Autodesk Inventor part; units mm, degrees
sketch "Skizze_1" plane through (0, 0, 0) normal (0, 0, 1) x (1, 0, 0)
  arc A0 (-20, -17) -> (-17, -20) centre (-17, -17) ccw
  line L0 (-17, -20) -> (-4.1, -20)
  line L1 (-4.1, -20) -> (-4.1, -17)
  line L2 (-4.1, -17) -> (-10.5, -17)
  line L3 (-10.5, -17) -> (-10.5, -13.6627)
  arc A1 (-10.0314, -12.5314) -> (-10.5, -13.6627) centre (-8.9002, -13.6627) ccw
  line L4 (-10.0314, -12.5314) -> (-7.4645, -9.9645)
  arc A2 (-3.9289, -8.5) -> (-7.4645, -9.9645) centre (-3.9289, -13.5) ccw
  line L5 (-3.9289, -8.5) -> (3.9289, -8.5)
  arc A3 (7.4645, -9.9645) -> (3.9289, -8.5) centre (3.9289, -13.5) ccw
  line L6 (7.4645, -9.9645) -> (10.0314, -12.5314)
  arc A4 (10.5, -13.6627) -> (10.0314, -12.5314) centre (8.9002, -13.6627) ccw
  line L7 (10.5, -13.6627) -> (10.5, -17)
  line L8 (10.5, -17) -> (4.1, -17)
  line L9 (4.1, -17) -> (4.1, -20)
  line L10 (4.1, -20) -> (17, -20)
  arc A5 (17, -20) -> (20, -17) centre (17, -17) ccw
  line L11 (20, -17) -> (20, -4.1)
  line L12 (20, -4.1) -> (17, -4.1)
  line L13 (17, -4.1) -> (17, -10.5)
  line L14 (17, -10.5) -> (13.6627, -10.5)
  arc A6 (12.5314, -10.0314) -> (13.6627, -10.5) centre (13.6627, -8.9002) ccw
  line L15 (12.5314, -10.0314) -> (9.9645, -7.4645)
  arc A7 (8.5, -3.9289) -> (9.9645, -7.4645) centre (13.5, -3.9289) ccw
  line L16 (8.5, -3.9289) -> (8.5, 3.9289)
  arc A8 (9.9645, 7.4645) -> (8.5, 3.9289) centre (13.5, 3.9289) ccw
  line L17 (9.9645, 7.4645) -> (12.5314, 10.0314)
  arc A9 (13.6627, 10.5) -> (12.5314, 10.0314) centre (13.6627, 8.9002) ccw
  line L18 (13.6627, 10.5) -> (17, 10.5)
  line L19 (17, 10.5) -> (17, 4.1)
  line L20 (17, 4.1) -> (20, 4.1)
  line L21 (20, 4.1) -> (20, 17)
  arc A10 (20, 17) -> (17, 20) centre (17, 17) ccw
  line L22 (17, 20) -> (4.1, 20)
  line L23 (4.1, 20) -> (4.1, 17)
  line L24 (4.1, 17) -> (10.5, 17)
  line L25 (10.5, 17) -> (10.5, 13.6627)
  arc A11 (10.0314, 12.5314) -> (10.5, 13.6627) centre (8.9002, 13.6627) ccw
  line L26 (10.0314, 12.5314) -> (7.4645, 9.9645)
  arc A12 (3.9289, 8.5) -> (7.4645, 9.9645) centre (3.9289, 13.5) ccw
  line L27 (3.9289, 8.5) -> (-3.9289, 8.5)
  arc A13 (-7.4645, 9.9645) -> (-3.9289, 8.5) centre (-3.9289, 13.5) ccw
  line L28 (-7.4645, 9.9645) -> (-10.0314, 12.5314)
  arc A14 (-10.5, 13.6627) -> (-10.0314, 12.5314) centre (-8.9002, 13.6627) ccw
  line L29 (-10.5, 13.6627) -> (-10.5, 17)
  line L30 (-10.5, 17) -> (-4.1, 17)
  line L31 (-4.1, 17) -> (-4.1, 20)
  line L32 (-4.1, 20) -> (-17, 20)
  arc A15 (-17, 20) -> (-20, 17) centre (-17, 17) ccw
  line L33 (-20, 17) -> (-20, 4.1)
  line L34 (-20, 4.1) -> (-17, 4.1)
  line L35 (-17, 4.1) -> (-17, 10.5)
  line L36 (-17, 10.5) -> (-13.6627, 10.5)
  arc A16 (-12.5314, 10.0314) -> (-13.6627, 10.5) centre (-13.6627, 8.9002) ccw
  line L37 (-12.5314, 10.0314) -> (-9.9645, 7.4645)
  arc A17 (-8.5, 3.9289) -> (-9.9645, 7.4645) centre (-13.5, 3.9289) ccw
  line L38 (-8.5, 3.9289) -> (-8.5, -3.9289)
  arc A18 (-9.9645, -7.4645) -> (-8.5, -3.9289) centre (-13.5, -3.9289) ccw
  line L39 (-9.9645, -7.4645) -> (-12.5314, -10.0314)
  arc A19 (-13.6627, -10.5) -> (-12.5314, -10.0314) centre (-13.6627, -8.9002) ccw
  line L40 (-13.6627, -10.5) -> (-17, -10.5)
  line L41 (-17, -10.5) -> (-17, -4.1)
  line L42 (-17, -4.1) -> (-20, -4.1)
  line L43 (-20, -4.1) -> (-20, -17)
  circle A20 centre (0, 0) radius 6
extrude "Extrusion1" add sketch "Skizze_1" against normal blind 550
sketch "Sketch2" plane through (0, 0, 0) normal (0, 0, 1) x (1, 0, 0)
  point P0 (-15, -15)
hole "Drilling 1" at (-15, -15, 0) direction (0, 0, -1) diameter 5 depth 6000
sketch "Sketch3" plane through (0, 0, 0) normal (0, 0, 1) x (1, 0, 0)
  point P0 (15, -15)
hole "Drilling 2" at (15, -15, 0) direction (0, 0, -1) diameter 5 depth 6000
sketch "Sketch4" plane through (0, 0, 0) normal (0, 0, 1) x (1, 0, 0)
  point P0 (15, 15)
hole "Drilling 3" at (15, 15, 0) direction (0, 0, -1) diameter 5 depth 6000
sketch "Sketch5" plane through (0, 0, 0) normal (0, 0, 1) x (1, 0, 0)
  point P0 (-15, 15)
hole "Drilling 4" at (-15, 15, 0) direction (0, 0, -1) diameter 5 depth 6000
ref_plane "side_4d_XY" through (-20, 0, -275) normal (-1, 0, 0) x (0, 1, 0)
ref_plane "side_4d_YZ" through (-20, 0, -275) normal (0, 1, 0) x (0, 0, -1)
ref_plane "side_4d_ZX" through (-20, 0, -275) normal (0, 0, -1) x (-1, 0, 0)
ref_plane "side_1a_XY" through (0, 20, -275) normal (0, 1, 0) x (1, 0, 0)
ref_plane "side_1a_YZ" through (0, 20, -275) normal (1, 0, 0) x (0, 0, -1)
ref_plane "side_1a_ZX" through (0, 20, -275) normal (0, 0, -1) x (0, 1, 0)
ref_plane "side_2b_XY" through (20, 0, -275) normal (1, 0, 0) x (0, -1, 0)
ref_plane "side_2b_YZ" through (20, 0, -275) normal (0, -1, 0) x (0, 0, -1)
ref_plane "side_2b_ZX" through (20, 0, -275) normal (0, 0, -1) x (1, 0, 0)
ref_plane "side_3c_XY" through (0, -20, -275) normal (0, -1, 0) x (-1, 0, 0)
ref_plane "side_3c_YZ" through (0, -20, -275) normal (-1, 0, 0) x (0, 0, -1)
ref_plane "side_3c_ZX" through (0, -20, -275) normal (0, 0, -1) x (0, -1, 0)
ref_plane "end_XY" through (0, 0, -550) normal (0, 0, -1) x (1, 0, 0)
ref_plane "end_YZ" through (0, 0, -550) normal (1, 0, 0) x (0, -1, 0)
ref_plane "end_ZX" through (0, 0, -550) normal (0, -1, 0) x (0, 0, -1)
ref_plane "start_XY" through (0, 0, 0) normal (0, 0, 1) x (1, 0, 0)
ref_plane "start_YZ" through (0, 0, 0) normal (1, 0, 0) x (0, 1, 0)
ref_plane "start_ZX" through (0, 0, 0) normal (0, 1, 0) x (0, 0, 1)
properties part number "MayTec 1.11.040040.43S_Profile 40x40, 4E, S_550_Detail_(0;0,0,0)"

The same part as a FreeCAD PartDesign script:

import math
import FreeCAD as App
import Part
import Sketcher
from FreeCAD import Vector

doc = App.newDocument("Part")
body = doc.addObject("PartDesign::Body", "Body")

# Sketch on XY plane
sketch1 = doc.addObject("Sketcher::SketchObject", "Sketch")
body.addObject(sketch1)
sketch1.AttachmentSupport = (doc.XY_Plane, [""])
sketch1.MapMode = "FlatFace"
sketch1.addGeometry([
    Part.LineSegment(Vector(-20, -4.1, 0), Vector(-20, -17, 0)),  # 0
    Part.ArcOfCircle(Part.Circle(Vector(-17, -17, 0), Vector(0, 0, 1), 3), math.radians(180), math.radians(270)),  # 1
    Part.LineSegment(Vector(-17, -20, 0), Vector(-4.1, -20, 0)),  # 2
    Part.LineSegment(Vector(-4.1, -20, 0), Vector(-4.1, -17, 0)),  # 3
    Part.LineSegment(Vector(-4.1, -17, 0), Vector(-10.5, -17, 0)),  # 4
    Part.LineSegment(Vector(-10.5, -17, 0), Vector(-10.5, -13.7, 0)),  # 5
    Part.ArcOfCircle(Part.Circle(Vector(-8.9, -13.7, 0), Vector(0, 0, 1), 1.6), math.radians(135), math.radians(180)),  # 6
    Part.LineSegment(Vector(-10, -12.5, 0), Vector(-7.5, -10, 0)),  # 7
    Part.ArcOfCircle(Part.Circle(Vector(-3.9, -13.5, 0), Vector(0, 0, 1), 5), math.radians(90), math.radians(135)),  # 8
    Part.LineSegment(Vector(-3.9, -8.5, 0), Vector(3.9, -8.5, 0)),  # 9
    Part.ArcOfCircle(Part.Circle(Vector(3.9, -13.5, 0), Vector(0, 0, 1), 5), math.radians(45), math.radians(90)),  # 10
    Part.LineSegment(Vector(7.5, -10, 0), Vector(10, -12.5, 0)),  # 11
    Part.ArcOfCircle(Part.Circle(Vector(8.9, -13.7, 0), Vector(0, 0, 1), 1.6), math.radians(0), math.radians(45)),  # 12
    Part.LineSegment(Vector(10.5, -13.7, 0), Vector(10.5, -17, 0)),  # 13
    Part.LineSegment(Vector(10.5, -17, 0), Vector(4.1, -17, 0)),  # 14
    Part.LineSegment(Vector(4.1, -17, 0), Vector(4.1, -20, 0)),  # 15
    Part.LineSegment(Vector(4.1, -20, 0), Vector(17, -20, 0)),  # 16
    Part.ArcOfCircle(Part.Circle(Vector(17, -17, 0), Vector(0, 0, 1), 3), math.radians(-90), math.radians(0)),  # 17
    Part.LineSegment(Vector(20, -17, 0), Vector(20, -4.1, 0)),  # 18
    Part.LineSegment(Vector(20, -4.1, 0), Vector(17, -4.1, 0)),  # 19
    Part.LineSegment(Vector(17, -4.1, 0), Vector(17, -10.5, 0)),  # 20
    Part.LineSegment(Vector(17, -10.5, 0), Vector(13.7, -10.5, 0)),  # 21
    Part.ArcOfCircle(Part.Circle(Vector(13.7, -8.9, 0), Vector(0, 0, 1), 1.6), math.radians(-135), math.radians(-90)),  # 22
    Part.LineSegment(Vector(12.5, -10, 0), Vector(10, -7.5, 0)),  # 23
    Part.ArcOfCircle(Part.Circle(Vector(13.5, -3.9, 0), Vector(0, 0, 1), 5), math.radians(180), math.radians(225)),  # 24
    Part.LineSegment(Vector(8.5, -3.9, 0), Vector(8.5, 3.9, 0)),  # 25
    Part.ArcOfCircle(Part.Circle(Vector(13.5, 3.9, 0), Vector(0, 0, 1), 5), math.radians(135), math.radians(180)),  # 26
    Part.LineSegment(Vector(10, 7.5, 0), Vector(12.5, 10, 0)),  # 27
    Part.ArcOfCircle(Part.Circle(Vector(13.7, 8.9, 0), Vector(0, 0, 1), 1.6), math.radians(90), math.radians(135)),  # 28
    Part.LineSegment(Vector(13.7, 10.5, 0), Vector(17, 10.5, 0)),  # 29
    Part.LineSegment(Vector(17, 10.5, 0), Vector(17, 4.1, 0)),  # 30
    Part.LineSegment(Vector(17, 4.1, 0), Vector(20, 4.1, 0)),  # 31
    Part.LineSegment(Vector(20, 4.1, 0), Vector(20, 17, 0)),  # 32
    Part.ArcOfCircle(Part.Circle(Vector(17, 17, 0), Vector(0, 0, 1), 3), math.radians(0), math.radians(90)),  # 33
    Part.LineSegment(Vector(17, 20, 0), Vector(4.1, 20, 0)),  # 34
    Part.LineSegment(Vector(4.1, 20, 0), Vector(4.1, 17, 0)),  # 35
    Part.LineSegment(Vector(4.1, 17, 0), Vector(10.5, 17, 0)),  # 36
    Part.LineSegment(Vector(10.5, 17, 0), Vector(10.5, 13.7, 0)),  # 37
    Part.ArcOfCircle(Part.Circle(Vector(8.9, 13.7, 0), Vector(0, 0, 1), 1.6), math.radians(-45), math.radians(0)),  # 38
    Part.LineSegment(Vector(10, 12.5, 0), Vector(7.5, 10, 0)),  # 39
    Part.ArcOfCircle(Part.Circle(Vector(3.9, 13.5, 0), Vector(0, 0, 1), 5), math.radians(-90), math.radians(-45)),  # 40
    Part.LineSegment(Vector(3.9, 8.5, 0), Vector(-3.9, 8.5, 0)),  # 41
    Part.ArcOfCircle(Part.Circle(Vector(-3.9, 13.5, 0), Vector(0, 0, 1), 5), math.radians(-135), math.radians(-90)),  # 42
    Part.LineSegment(Vector(-7.5, 10, 0), Vector(-10, 12.5, 0)),  # 43
    Part.ArcOfCircle(Part.Circle(Vector(-8.9, 13.7, 0), Vector(0, 0, 1), 1.6), math.radians(180), math.radians(225)),  # 44
    Part.LineSegment(Vector(-10.5, 13.7, 0), Vector(-10.5, 17, 0)),  # 45
    Part.LineSegment(Vector(-10.5, 17, 0), Vector(-4.1, 17, 0)),  # 46
    Part.LineSegment(Vector(-4.1, 17, 0), Vector(-4.1, 20, 0)),  # 47
    Part.LineSegment(Vector(-4.1, 20, 0), Vector(-17, 20, 0)),  # 48
    Part.ArcOfCircle(Part.Circle(Vector(-17, 17, 0), Vector(0, 0, 1), 3), math.radians(90), math.radians(180)),  # 49
    Part.LineSegment(Vector(-20, 17, 0), Vector(-20, 4.1, 0)),  # 50
    Part.LineSegment(Vector(-20, 4.1, 0), Vector(-17, 4.1, 0)),  # 51
    Part.LineSegment(Vector(-17, 4.1, 0), Vector(-17, 10.5, 0)),  # 52
    Part.LineSegment(Vector(-17, 10.5, 0), Vector(-13.7, 10.5, 0)),  # 53
    Part.ArcOfCircle(Part.Circle(Vector(-13.7, 8.9, 0), Vector(0, 0, 1), 1.6), math.radians(45), math.radians(90)),  # 54
    Part.LineSegment(Vector(-12.5, 10, 0), Vector(-10, 7.5, 0)),  # 55
    Part.ArcOfCircle(Part.Circle(Vector(-13.5, 3.9, 0), Vector(0, 0, 1), 5), math.radians(0), math.radians(45)),  # 56
    Part.LineSegment(Vector(-8.5, 3.9, 0), Vector(-8.5, -3.9, 0)),  # 57
    Part.ArcOfCircle(Part.Circle(Vector(-13.5, -3.9, 0), Vector(0, 0, 1), 5), math.radians(-45), math.radians(0)),  # 58
    Part.LineSegment(Vector(-10, -7.5, 0), Vector(-12.5, -10, 0)),  # 59
    Part.ArcOfCircle(Part.Circle(Vector(-13.7, -8.9, 0), Vector(0, 0, 1), 1.6), math.radians(-90), math.radians(-45)),  # 60
    Part.LineSegment(Vector(-13.7, -10.5, 0), Vector(-17, -10.5, 0)),  # 61
    Part.LineSegment(Vector(-17, -10.5, 0), Vector(-17, -4.1, 0)),  # 62
    Part.LineSegment(Vector(-17, -4.1, 0), Vector(-20, -4.1, 0)),  # 63
    Part.Circle(Vector(0, 0, 0), Vector(0, 0, 1), 6),  # 64
], False)
sketch1.addConstraint([
    Sketcher.Constraint("Tangent", 0, 2, 1, 1),
    Sketcher.Constraint("Tangent", 1, 2, 2, 1),
    Sketcher.Constraint("Coincident", 2, 2, 3, 1),
    Sketcher.Constraint("Coincident", 3, 2, 4, 1),
    Sketcher.Constraint("Coincident", 4, 2, 5, 1),
    Sketcher.Constraint("Tangent", 5, 2, 6, 2),
    Sketcher.Constraint("Tangent", 6, 1, 7, 1),
    Sketcher.Constraint("Tangent", 7, 2, 8, 2),
    Sketcher.Constraint("Tangent", 8, 1, 9, 1),
    Sketcher.Constraint("Tangent", 9, 2, 10, 2),
    Sketcher.Constraint("Tangent", 10, 1, 11, 1),
    Sketcher.Constraint("Tangent", 11, 2, 12, 2),
    Sketcher.Constraint("Tangent", 12, 1, 13, 1),
    Sketcher.Constraint("Coincident", 13, 2, 14, 1),
    Sketcher.Constraint("Coincident", 14, 2, 15, 1),
    Sketcher.Constraint("Coincident", 15, 2, 16, 1),
    Sketcher.Constraint("Tangent", 16, 2, 17, 1),
    Sketcher.Constraint("Tangent", 17, 2, 18, 1),
    Sketcher.Constraint("Coincident", 18, 2, 19, 1),
    Sketcher.Constraint("Coincident", 19, 2, 20, 1),
    Sketcher.Constraint("Coincident", 20, 2, 21, 1),
    Sketcher.Constraint("Tangent", 21, 2, 22, 2),
    Sketcher.Constraint("Tangent", 22, 1, 23, 1),
    Sketcher.Constraint("Tangent", 23, 2, 24, 2),
    Sketcher.Constraint("Tangent", 24, 1, 25, 1),
    Sketcher.Constraint("Tangent", 25, 2, 26, 2),
    Sketcher.Constraint("Tangent", 26, 1, 27, 1),
    Sketcher.Constraint("Tangent", 27, 2, 28, 2),
    Sketcher.Constraint("Tangent", 28, 1, 29, 1),
    Sketcher.Constraint("Coincident", 29, 2, 30, 1),
    Sketcher.Constraint("Coincident", 30, 2, 31, 1),
    Sketcher.Constraint("Coincident", 31, 2, 32, 1),
    Sketcher.Constraint("Tangent", 32, 2, 33, 1),
    Sketcher.Constraint("Tangent", 33, 2, 34, 1),
    Sketcher.Constraint("Coincident", 34, 2, 35, 1),
    Sketcher.Constraint("Coincident", 35, 2, 36, 1),
    Sketcher.Constraint("Coincident", 36, 2, 37, 1),
    Sketcher.Constraint("Tangent", 37, 2, 38, 2),
    Sketcher.Constraint("Tangent", 38, 1, 39, 1),
    Sketcher.Constraint("Tangent", 39, 2, 40, 2),
    Sketcher.Constraint("Tangent", 40, 1, 41, 1),
    Sketcher.Constraint("Tangent", 41, 2, 42, 2),
    Sketcher.Constraint("Tangent", 42, 1, 43, 1),
    Sketcher.Constraint("Tangent", 43, 2, 44, 2),
    Sketcher.Constraint("Tangent", 44, 1, 45, 1),
    Sketcher.Constraint("Coincident", 45, 2, 46, 1),
    Sketcher.Constraint("Coincident", 46, 2, 47, 1),
    Sketcher.Constraint("Coincident", 47, 2, 48, 1),
    Sketcher.Constraint("Tangent", 48, 2, 49, 1),
    Sketcher.Constraint("Tangent", 49, 2, 50, 1),
    Sketcher.Constraint("Coincident", 50, 2, 51, 1),
    Sketcher.Constraint("Coincident", 51, 2, 52, 1),
    Sketcher.Constraint("Coincident", 52, 2, 53, 1),
    Sketcher.Constraint("Tangent", 53, 2, 54, 2),
    Sketcher.Constraint("Tangent", 54, 1, 55, 1),
    Sketcher.Constraint("Tangent", 55, 2, 56, 2),
    Sketcher.Constraint("Tangent", 56, 1, 57, 1),
    Sketcher.Constraint("Tangent", 57, 2, 58, 2),
    Sketcher.Constraint("Tangent", 58, 1, 59, 1),
    Sketcher.Constraint("Tangent", 59, 2, 60, 2),
    Sketcher.Constraint("Tangent", 60, 1, 61, 1),
    Sketcher.Constraint("Coincident", 61, 2, 62, 1),
    Sketcher.Constraint("Coincident", 62, 2, 63, 1),
    Sketcher.Constraint("Coincident", 63, 2, 0, 1),
    Sketcher.Constraint("Vertical", 0),
    Sketcher.Constraint("Horizontal", 2),
    Sketcher.Constraint("Vertical", 3),
    Sketcher.Constraint("Horizontal", 4),
    Sketcher.Constraint("Vertical", 5),
    Sketcher.Constraint("Horizontal", 9),
    Sketcher.Constraint("Vertical", 13),
    Sketcher.Constraint("Horizontal", 14),
    Sketcher.Constraint("Vertical", 15),
    Sketcher.Constraint("Horizontal", 16),
    Sketcher.Constraint("Vertical", 18),
    Sketcher.Constraint("Horizontal", 19),
    Sketcher.Constraint("Vertical", 20),
    Sketcher.Constraint("Horizontal", 21),
    Sketcher.Constraint("Vertical", 25),
    Sketcher.Constraint("Horizontal", 29),
    Sketcher.Constraint("Vertical", 30),
    Sketcher.Constraint("Horizontal", 31),
    Sketcher.Constraint("Vertical", 32),
    Sketcher.Constraint("Horizontal", 34),
    Sketcher.Constraint("Vertical", 35),
    Sketcher.Constraint("Horizontal", 36),
    Sketcher.Constraint("Vertical", 37),
    Sketcher.Constraint("Horizontal", 41),
    Sketcher.Constraint("Vertical", 45),
    Sketcher.Constraint("Horizontal", 46),
    Sketcher.Constraint("Vertical", 47),
    Sketcher.Constraint("Horizontal", 48),
    Sketcher.Constraint("Vertical", 50),
    Sketcher.Constraint("Horizontal", 51),
    Sketcher.Constraint("Vertical", 52),
    Sketcher.Constraint("Horizontal", 53),
    Sketcher.Constraint("Vertical", 57),
    Sketcher.Constraint("Horizontal", 61),
    Sketcher.Constraint("Vertical", 62),
    Sketcher.Constraint("Horizontal", 63),
    Sketcher.Constraint("Coincident", 64, 3, -1, 1),
    Sketcher.Constraint("Equal", 8, 10),
    Sketcher.Constraint("Equal", 6, 12),
    Sketcher.Constraint("Equal", 1, 17),
    Sketcher.Constraint("Equal", 12, 22),
    Sketcher.Constraint("Equal", 10, 24),
    Sketcher.Constraint("Equal", 24, 26),
    Sketcher.Constraint("Equal", 22, 28),
    Sketcher.Constraint("Equal", 17, 33),
    Sketcher.Constraint("Equal", 28, 38),
    Sketcher.Constraint("Equal", 26, 40),
    Sketcher.Constraint("Equal", 40, 42),
    Sketcher.Constraint("Equal", 38, 44),
    Sketcher.Constraint("Equal", 33, 49),
    Sketcher.Constraint("Equal", 44, 54),
    Sketcher.Constraint("Equal", 42, 56),
    Sketcher.Constraint("Equal", 56, 58),
    Sketcher.Constraint("Equal", 54, 60),
    Sketcher.Constraint("Symmetric", 1, 3, 33, 3, -1, 1),
    Sketcher.Constraint("Symmetric", 6, 3, 38, 3, -1, 1),
    Sketcher.Constraint("Symmetric", 8, 3, 40, 3, -1, 1),
    Sketcher.Constraint("Symmetric", 12, 3, 44, 3, -1, 1),
    Sketcher.Constraint("Symmetric", 17, 3, 49, 3, -1, 1),
    Sketcher.Constraint("Symmetric", 22, 3, 54, 3, -1, 1),
    Sketcher.Constraint("Symmetric", 24, 3, 56, 3, -1, 1),
    Sketcher.Constraint("Symmetric", 28, 3, 60, 3, -1, 1),
    Sketcher.Constraint("Symmetric", 3, 2, 35, 2, -1, 1),
    Sketcher.Constraint("Symmetric", 14, 2, 46, 2, -1, 1),
    Sketcher.Constraint("Symmetric", 19, 2, 51, 2, -1, 1),
    Sketcher.Constraint("Symmetric", 30, 2, 62, 2, -1, 1),
    Sketcher.Constraint("Symmetric", 6, 3, 12, 3, -2),
    Sketcher.Constraint("Symmetric", 1, 3, 17, 3, -2),
    Sketcher.Constraint("Symmetric", 28, 3, 54, 3, -2),
    Sketcher.Constraint("Symmetric", 3, 2, 14, 2, -2),
    Sketcher.Constraint("Symmetric", 30, 2, 51, 2, -2),
    Sketcher.Constraint("Perpendicular", 7, 11),
    Sketcher.Constraint("Parallel", 11, 23),
    Sketcher.Constraint("Perpendicular", 23, 27),
    Sketcher.Constraint("Perpendicular", 39, 43),
    Sketcher.Constraint("Perpendicular", 55, 59),
    Sketcher.Constraint("Horizontal", 26, 3, 56, 3),
    Sketcher.Constraint("Horizontal", 0, 2, 3, 2),
    Sketcher.Constraint("Vertical", 16, 2, 19, 2),
    Sketcher.Constraint("Equal", 48, 0),
    Sketcher.Constraint("Equal", 61, 5),
    Sketcher.Constraint("Equal", 46, 20),
    Sketcher.Constraint("Equal", 41, 25),
    Sketcher.Constraint("Equal", 11, 23),
    Sketcher.Constraint("Diameter", 64, 12.0),
    Sketcher.Constraint("Radius", 1, 3.0),
    Sketcher.Constraint("Radius", 8, 5.0),
    Sketcher.Constraint("DistanceX", 2, 1, 2, 2, 12.9),
    Sketcher.Constraint("DistanceX", 4, 2, 4, 1, 6.4),
    Sketcher.Constraint("DistanceX", 1, 3, -1, 1, 17.0),
    Sketcher.Constraint("DistanceY", 8, 3, -1, 1, 13.5),
    Sketcher.Constraint("Radius", 6, 1.5998),
    Sketcher.Constraint("DistanceX", 9, 1, 9, 2, 7.8578),
])
pad1 = doc.addObject("PartDesign::Pad", "Pad")
body.addObject(pad1)
pad1.Profile = sketch1
pad1.Length = 550
pad1.Reversed = True

# Sketch on XY plane
sketch2 = doc.addObject("Sketcher::SketchObject", "Sketch001")
body.addObject(sketch2)
sketch2.AttachmentSupport = (doc.XY_Plane, [""])
sketch2.MapMode = "FlatFace"
sketch2.addGeometry(Part.Circle(Vector(-15, -15, 0), Vector(0, 0, 1), 2.5), False)
sketch2.addConstraint([
    Sketcher.Constraint("Diameter", 0, 5.0),
    Sketcher.Constraint("DistanceX", 0, 3, -1, 1, 15.0),
    Sketcher.Constraint("DistanceY", 0, 3, -1, 1, 15.0),
])
doc.recompute()
hole = doc.addObject("PartDesign::Hole", "Hole")
body.addObject(hole)
hole.Profile = sketch2
hole.ThreadType = "None"
hole.Diameter = 5
hole.DepthType = "Dimension"
hole.Depth = 6000
hole.DrillPoint = "Flat"

# Sketch on XY plane
sketch3 = doc.addObject("Sketcher::SketchObject", "Sketch002")
body.addObject(sketch3)
sketch3.AttachmentSupport = (doc.XY_Plane, [""])
sketch3.MapMode = "FlatFace"
sketch3.addGeometry(Part.Circle(Vector(15, -15, 0), Vector(0, 0, 1), 2.5), False)
sketch3.addConstraint([
    Sketcher.Constraint("Diameter", 0, 5.0),
    Sketcher.Constraint("DistanceX", -1, 1, 0, 3, 15.0),
    Sketcher.Constraint("DistanceY", 0, 3, -1, 1, 15.0),
])
doc.recompute()
hole2 = doc.addObject("PartDesign::Hole", "Hole001")
body.addObject(hole2)
hole2.Profile = sketch3
hole2.ThreadType = "None"
hole2.Diameter = 5
hole2.DepthType = "Dimension"
hole2.Depth = 6000
hole2.DrillPoint = "Flat"

# Sketch on XY plane
sketch4 = doc.addObject("Sketcher::SketchObject", "Sketch003")
body.addObject(sketch4)
sketch4.AttachmentSupport = (doc.XY_Plane, [""])
sketch4.MapMode = "FlatFace"
sketch4.addGeometry(Part.Circle(Vector(15, 15, 0), Vector(0, 0, 1), 2.5), False)
sketch4.addConstraint([
    Sketcher.Constraint("Diameter", 0, 5.0),
    Sketcher.Constraint("DistanceX", -1, 1, 0, 3, 15.0),
    Sketcher.Constraint("DistanceY", -1, 1, 0, 3, 15.0),
])
doc.recompute()
hole3 = doc.addObject("PartDesign::Hole", "Hole002")
body.addObject(hole3)
hole3.Profile = sketch4
hole3.ThreadType = "None"
hole3.Diameter = 5
hole3.DepthType = "Dimension"
hole3.Depth = 6000
hole3.DrillPoint = "Flat"

# Sketch on XY plane
sketch5 = doc.addObject("Sketcher::SketchObject", "Sketch004")
body.addObject(sketch5)
sketch5.AttachmentSupport = (doc.XY_Plane, [""])
sketch5.MapMode = "FlatFace"
sketch5.addGeometry(Part.Circle(Vector(-15, 15, 0), Vector(0, 0, 1), 2.5), False)
sketch5.addConstraint([
    Sketcher.Constraint("Diameter", 0, 5.0),
    Sketcher.Constraint("DistanceX", 0, 3, -1, 1, 15.0),
    Sketcher.Constraint("DistanceY", -1, 1, 0, 3, 15.0),
])
doc.recompute()
hole4 = doc.addObject("PartDesign::Hole", "Hole003")
body.addObject(hole4)
hole4.Profile = sketch5
hole4.ThreadType = "None"
hole4.Diameter = 5
hole4.DepthType = "Dimension"
hole4.Depth = 6000
hole4.DrillPoint = "Flat"

doc.recompute()
